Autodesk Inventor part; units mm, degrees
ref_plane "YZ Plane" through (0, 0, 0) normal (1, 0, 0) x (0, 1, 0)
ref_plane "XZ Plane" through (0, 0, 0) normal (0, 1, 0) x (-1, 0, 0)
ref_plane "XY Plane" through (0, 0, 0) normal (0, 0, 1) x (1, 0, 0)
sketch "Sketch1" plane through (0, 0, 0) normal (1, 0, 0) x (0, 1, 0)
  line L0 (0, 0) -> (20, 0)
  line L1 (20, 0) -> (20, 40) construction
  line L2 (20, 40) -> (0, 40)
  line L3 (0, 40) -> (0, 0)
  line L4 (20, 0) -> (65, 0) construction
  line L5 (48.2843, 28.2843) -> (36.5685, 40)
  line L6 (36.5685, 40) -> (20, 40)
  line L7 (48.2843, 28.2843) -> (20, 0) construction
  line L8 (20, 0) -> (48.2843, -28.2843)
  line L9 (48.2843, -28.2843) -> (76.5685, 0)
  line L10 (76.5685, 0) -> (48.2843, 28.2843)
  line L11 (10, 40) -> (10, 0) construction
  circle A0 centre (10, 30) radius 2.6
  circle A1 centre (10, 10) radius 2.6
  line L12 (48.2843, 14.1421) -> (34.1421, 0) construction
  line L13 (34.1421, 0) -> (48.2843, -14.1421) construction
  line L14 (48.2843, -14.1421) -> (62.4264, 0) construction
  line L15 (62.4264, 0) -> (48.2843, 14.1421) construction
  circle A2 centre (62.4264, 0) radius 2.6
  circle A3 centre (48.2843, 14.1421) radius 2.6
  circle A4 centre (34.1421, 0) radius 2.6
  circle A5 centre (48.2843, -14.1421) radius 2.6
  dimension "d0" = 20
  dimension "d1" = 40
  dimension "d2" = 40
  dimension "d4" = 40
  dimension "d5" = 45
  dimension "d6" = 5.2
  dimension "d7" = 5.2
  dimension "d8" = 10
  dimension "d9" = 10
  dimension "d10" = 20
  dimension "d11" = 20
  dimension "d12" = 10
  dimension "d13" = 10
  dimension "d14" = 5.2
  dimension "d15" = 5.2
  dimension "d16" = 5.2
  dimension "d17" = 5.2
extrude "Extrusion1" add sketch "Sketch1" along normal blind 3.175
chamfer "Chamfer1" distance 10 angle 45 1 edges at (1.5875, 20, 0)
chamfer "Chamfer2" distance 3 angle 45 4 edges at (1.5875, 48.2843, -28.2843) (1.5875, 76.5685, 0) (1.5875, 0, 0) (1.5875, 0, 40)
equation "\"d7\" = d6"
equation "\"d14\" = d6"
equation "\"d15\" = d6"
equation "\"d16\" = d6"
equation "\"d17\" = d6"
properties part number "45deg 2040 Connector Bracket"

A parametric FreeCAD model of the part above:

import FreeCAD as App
import Part
import Sketcher

V = App.Vector


def edges_at(feature, points):
    """Names of the edges that pass closest to the given points."""
    edges = feature.Shape.Edges
    near = lambda p: min(range(len(edges)), key=lambda i: edges[i].distToShape(Part.Vertex(*p))[0])
    return sorted({f"Edge{near(p) + 1}" for p in points})


def add_polygon(sketch, points):
    """Adds a closed chain of lines whose ends are joined by coincident constraints."""
    first, n = sketch.GeometryCount, len(points)
    for a, b in zip(points, points[1:] + points[:1]):
        sketch.addGeometry(Part.LineSegment(App.Vector(*a, 0), App.Vector(*b, 0)), False)
    for i in range(n):
        sketch.addConstraint(Sketcher.Constraint("Coincident", first + i, 2, first + (i + 1) % n, 1))

doc = App.newDocument("Part")
body = doc.addObject("PartDesign::Body", "Body")

sketch1 = body.newObject("Sketcher::SketchObject", "Sketch")
sketch1.AttachmentSupport = (doc.getObject("YZ_Plane"), [""])
sketch1.MapMode = "FlatFace"
add_polygon(sketch1, [(0, 40), (0, 0), (20, 0), (48.3, -28.3), (76.6, 0), (48.3, 28.3), (36.6, 40)])
sketch1.addGeometry(Part.Circle(V(34.1, 0, 0), V(0, 0, 1), 2.6), False)
sketch1.addGeometry(Part.Circle(V(48.3, -14.1, 0), V(0, 0, 1), 2.6), False)
sketch1.addGeometry(Part.Circle(V(62.4, 0, 0), V(0, 0, 1), 2.6), False)
sketch1.addGeometry(Part.Circle(V(10, 10, 0), V(0, 0, 1), 2.6), False)
sketch1.addGeometry(Part.Circle(V(10, 30, 0), V(0, 0, 1), 2.6), False)
sketch1.addGeometry(Part.Circle(V(48.3, 14.1, 0), V(0, 0, 1), 2.6), False)
sketch1.addConstraint([
    Sketcher.Constraint("Vertical", 0),
    Sketcher.Constraint("Horizontal", 1),
    Sketcher.Constraint("Horizontal", 6),
    Sketcher.Constraint("Coincident", 0, 2, -1, 1),
    Sketcher.Constraint("Equal", 7, 8),
    Sketcher.Constraint("Equal", 8, 9),
    Sketcher.Constraint("Equal", 9, 10),
    Sketcher.Constraint("Equal", 10, 11),
    Sketcher.Constraint("Equal", 11, 12),
    Sketcher.Constraint("Symmetric", 8, 3, 12, 3, -1),
    Sketcher.Constraint("Symmetric", 2, 2, 4, 2, -1),
    Sketcher.Constraint("PointOnObject", 7, 3, -1),
    Sketcher.Constraint("PointOnObject", 9, 3, -1),
    Sketcher.Constraint("PointOnObject", 3, 2, -1),
    Sketcher.Constraint("Perpendicular", 2, 3),
    Sketcher.Constraint("Perpendicular", 3, 4),
    Sketcher.Constraint("Parallel", 4, 5),
    Sketcher.Constraint("Vertical", 10, 3, 11, 3),
    Sketcher.Constraint("Vertical", 12, 3, 2, 2),
    Sketcher.Constraint("Diameter", 7, 5.2),
    Sketcher.Constraint("DistanceX", 1, 1, 1, 2, 20.0),
    Sketcher.Constraint("DistanceY", 0, 2, 0, 1, 40.0),
    Sketcher.Constraint("Distance", 2, 40.0),
    Sketcher.Constraint("DistanceX", -1, 1, 10, 3, 10.0),
    Sketcher.Constraint("DistanceY", -1, 1, 10, 3, 10.0),
    Sketcher.Constraint("DistanceY", 10, 3, 11, 3, 20.0),
    Sketcher.Constraint("DistanceX", -1, 1, 7, 3, 34.142),
    Sketcher.Constraint("DistanceY", 8, 3, -1, 1, 14.142),
    Sketcher.Constraint("DistanceX", 8, 3, 9, 3, 14.142),
])
pad1 = body.newObject("PartDesign::Pad", "Pad")
pad1.Profile = sketch1
pad1.Length = 3.175
doc.recompute()

chamfer = body.newObject("PartDesign::Chamfer", "Chamfer")
chamfer.Base = (pad1, edges_at(pad1, [(1.587, 20, 0)]))
chamfer.Size = 10
doc.recompute()

chamfer2 = body.newObject("PartDesign::Chamfer", "Chamfer001")
chamfer2.Base = (chamfer, edges_at(chamfer, [
    (1.587, 48.284, -28.284),
    (1.587, 76.569, 0),
    (1.587, 0, 0),
    (1.587, 0, 40),
]))
chamfer2.Size = 3

doc.recompute()
